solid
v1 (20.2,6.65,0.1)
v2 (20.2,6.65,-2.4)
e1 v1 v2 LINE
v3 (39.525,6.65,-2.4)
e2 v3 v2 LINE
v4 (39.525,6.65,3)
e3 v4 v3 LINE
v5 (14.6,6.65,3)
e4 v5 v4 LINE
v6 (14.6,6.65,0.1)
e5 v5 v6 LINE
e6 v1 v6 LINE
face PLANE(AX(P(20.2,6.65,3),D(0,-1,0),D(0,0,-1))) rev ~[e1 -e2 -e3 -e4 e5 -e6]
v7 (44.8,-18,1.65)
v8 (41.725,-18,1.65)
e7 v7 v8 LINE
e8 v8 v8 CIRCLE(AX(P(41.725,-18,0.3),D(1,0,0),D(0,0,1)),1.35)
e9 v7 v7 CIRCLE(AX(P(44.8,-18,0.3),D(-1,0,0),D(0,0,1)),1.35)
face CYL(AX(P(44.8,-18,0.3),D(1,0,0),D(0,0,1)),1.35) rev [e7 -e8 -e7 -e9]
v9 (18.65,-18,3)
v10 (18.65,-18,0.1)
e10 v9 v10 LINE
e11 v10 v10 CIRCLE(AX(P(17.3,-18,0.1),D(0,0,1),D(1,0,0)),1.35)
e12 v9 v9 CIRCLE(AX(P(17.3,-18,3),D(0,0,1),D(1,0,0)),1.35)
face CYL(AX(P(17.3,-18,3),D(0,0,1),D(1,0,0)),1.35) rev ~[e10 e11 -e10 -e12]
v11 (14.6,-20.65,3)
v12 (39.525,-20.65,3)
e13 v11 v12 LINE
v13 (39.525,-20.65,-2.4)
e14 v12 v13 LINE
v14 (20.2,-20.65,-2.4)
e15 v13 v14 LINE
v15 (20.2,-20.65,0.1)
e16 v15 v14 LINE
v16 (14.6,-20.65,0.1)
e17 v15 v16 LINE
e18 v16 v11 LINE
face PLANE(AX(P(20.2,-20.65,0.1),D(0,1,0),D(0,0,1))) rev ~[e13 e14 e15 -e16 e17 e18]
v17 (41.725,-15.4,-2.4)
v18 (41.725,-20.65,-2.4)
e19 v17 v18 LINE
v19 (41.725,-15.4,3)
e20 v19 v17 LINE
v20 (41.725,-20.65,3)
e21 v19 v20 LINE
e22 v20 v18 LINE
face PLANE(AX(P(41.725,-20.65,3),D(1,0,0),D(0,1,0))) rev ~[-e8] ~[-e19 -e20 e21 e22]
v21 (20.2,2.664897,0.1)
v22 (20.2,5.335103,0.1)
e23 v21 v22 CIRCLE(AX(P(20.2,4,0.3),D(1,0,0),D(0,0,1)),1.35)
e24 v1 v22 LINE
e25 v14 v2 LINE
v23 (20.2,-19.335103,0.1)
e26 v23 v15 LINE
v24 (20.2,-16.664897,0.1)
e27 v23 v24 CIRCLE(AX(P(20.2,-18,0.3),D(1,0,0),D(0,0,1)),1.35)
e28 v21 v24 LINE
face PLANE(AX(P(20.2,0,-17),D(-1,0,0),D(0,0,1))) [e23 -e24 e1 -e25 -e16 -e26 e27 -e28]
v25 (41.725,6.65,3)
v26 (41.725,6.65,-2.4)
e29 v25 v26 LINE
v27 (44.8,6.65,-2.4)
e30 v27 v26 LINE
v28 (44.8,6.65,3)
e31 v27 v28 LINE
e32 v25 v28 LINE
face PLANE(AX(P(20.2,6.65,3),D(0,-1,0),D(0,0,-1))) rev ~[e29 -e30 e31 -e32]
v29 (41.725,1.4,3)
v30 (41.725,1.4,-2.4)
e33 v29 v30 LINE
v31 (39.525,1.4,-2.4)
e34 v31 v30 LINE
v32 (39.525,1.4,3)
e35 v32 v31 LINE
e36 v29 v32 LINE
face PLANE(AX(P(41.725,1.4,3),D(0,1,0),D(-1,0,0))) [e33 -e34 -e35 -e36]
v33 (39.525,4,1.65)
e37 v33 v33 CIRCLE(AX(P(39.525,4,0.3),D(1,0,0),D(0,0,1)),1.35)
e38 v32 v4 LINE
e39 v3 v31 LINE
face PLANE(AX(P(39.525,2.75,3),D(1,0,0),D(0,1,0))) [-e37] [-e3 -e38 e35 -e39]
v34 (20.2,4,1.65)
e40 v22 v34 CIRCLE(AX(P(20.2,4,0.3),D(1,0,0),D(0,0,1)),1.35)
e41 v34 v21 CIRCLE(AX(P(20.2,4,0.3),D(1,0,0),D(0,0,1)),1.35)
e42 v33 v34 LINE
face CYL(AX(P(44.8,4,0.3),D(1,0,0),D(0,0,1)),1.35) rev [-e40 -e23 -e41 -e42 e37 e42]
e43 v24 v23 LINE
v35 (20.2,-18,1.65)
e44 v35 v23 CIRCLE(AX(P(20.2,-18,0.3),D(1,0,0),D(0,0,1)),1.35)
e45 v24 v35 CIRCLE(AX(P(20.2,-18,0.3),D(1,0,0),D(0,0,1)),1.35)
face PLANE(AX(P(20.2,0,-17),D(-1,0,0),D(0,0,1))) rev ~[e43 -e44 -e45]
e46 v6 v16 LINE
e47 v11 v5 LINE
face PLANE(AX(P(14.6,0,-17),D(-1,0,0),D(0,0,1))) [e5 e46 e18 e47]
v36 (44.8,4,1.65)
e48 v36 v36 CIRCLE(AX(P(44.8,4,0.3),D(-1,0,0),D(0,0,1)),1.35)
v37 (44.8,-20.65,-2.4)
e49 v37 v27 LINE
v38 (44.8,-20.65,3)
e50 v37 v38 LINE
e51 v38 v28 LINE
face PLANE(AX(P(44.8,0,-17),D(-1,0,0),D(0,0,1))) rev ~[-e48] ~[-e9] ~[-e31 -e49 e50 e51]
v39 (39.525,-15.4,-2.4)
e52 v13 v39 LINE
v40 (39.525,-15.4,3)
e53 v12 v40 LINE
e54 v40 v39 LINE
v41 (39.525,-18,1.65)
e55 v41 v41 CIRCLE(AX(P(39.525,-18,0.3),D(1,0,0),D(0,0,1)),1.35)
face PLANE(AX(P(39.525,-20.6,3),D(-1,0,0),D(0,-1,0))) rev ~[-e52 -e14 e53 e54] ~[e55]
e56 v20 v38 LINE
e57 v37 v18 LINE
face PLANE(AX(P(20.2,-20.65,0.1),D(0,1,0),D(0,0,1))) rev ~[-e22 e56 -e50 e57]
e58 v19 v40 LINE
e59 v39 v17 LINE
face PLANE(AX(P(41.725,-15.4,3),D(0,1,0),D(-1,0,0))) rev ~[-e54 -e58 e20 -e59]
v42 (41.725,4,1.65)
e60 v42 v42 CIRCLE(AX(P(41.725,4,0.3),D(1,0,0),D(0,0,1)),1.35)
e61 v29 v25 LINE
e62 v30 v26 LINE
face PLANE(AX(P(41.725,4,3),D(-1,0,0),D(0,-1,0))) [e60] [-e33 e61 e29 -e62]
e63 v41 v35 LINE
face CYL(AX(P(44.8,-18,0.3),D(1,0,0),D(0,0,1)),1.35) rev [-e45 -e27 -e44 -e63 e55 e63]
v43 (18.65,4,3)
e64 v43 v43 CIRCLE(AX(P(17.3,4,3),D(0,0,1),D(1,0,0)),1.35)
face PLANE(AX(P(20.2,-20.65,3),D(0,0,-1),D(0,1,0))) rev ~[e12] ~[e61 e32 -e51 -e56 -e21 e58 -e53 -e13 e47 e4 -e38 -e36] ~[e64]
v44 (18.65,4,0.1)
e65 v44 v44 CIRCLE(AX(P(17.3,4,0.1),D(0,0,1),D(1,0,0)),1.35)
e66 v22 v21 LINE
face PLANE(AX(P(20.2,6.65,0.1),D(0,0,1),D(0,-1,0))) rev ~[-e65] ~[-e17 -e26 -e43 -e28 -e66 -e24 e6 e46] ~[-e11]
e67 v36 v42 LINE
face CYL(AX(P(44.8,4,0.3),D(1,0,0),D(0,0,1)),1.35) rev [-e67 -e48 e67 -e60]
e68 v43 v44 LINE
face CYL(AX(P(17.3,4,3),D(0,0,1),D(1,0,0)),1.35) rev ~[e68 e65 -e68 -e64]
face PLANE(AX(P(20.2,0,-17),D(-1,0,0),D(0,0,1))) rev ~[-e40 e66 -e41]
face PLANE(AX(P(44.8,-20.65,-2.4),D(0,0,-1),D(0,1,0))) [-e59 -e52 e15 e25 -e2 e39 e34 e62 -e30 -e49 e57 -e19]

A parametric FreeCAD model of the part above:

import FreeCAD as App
import Part
import Sketcher

V = App.Vector

doc = App.newDocument("Part")
body = doc.addObject("PartDesign::Body", "Body")

sketch1 = body.newObject("Sketcher::SketchObject", "Sketch")
sketch1.AttachmentSupport = (doc.getObject("YZ_Plane"), [""])
sketch1.MapMode = "FlatFace"
sketch1.AttachmentOffset = App.Placement(V(0, 0, 44.8), App.Rotation())
sketch1.addGeometry(Part.LineSegment(V(-20.6, 3, 0), V(6.7, 3, 0)), False)
sketch1.addGeometry(Part.LineSegment(V(6.7, 3, 0), V(6.7, -2.4, 0)), False)
sketch1.addGeometry(Part.LineSegment(V(6.7, -2.4, 0), V(-20.6, -2.4, 0)), False)
sketch1.addGeometry(Part.LineSegment(V(-20.6, -2.4, 0), V(-20.6, 3, 0)), False)
sketch1.addGeometry(Part.Circle(V(-18, 0.3, 0), V(0, 0, 1), 1.4), False)
sketch1.addGeometry(Part.Circle(V(4, 0.3, 0), V(0, 0, 1), 1.4), False)
sketch1.addConstraint(Sketcher.Constraint("Coincident", 0, 2, 1, 1))
sketch1.addConstraint(Sketcher.Constraint("Coincident", 1, 2, 2, 1))
sketch1.addConstraint(Sketcher.Constraint("Coincident", 2, 2, 3, 1))
sketch1.addConstraint(Sketcher.Constraint("Coincident", 3, 2, 0, 1))
sketch1.addConstraint(Sketcher.Constraint("Horizontal", 0))
sketch1.addConstraint(Sketcher.Constraint("Vertical", 1))
sketch1.addConstraint(Sketcher.Constraint("Horizontal", 2))
sketch1.addConstraint(Sketcher.Constraint("Vertical", 3))
sketch1.addConstraint(Sketcher.Constraint("Equal", 4, 5))
sketch1.addConstraint(Sketcher.Constraint("Horizontal", 4, 3, 5, 3))
sketch1.addConstraint(Sketcher.Constraint("Diameter", 4, 2.7))
sketch1.addConstraint(Sketcher.Constraint("DistanceX", 0, 1, 0, 2, 27.3))
sketch1.addConstraint(Sketcher.Constraint("DistanceY", 1, 2, 1, 1, 5.4))
sketch1.addConstraint(Sketcher.Constraint("DistanceX", 4, 3, -1, 1, 18.0))
sketch1.addConstraint(Sketcher.Constraint("DistanceX", -1, 1, 5, 3, 4.0))
sketch1.addConstraint(Sketcher.Constraint("DistanceY", -1, 1, 0, 2, 3.0))
sketch1.addConstraint(Sketcher.Constraint("DistanceY", -1, 1, 4, 3, 0.3))
sketch1.addConstraint(Sketcher.Constraint("DistanceX", -1, 1, 0, 2, 6.65))
pad1 = body.newObject("PartDesign::Pad", "Pad")
pad1.Profile = sketch1
pad1.Length = 24.6
pad1.Reversed = True

sketch2 = body.newObject("Sketcher::SketchObject", "Sketch001")
sketch2.AttachmentSupport = (doc.getObject("YZ_Plane"), [""])
sketch2.MapMode = "FlatFace"
sketch2.AttachmentOffset = App.Placement(V(0, 0, 20.2), App.Rotation())
sketch2.addGeometry(Part.LineSegment(V(6.7, 3, 0), V(6.7, 0.1, 0)), False)
sketch2.addGeometry(Part.LineSegment(V(6.7, 0.1, 0), V(-20.6, 0.1, 0)), False)
sketch2.addGeometry(Part.LineSegment(V(-20.6, 0.1, 0), V(-20.6, 3, 0)), False)
sketch2.addGeometry(Part.LineSegment(V(-20.6, 3, 0), V(6.7, 3, 0)), False)
sketch2.addConstraint(Sketcher.Constraint("Coincident", 0, 2, 1, 1))
sketch2.addConstraint(Sketcher.Constraint("Coincident", 1, 2, 2, 1))
sketch2.addConstraint(Sketcher.Constraint("Coincident", 2, 2, 3, 1))
sketch2.addConstraint(Sketcher.Constraint("Coincident", 3, 2, 0, 1))
sketch2.addConstraint(Sketcher.Constraint("Vertical", 0))
sketch2.addConstraint(Sketcher.Constraint("Horizontal", 1))
sketch2.addConstraint(Sketcher.Constraint("Vertical", 2))
sketch2.addConstraint(Sketcher.Constraint("Horizontal", 3))
sketch2.addConstraint(Sketcher.Constraint("DistanceY", -1, 1, 0, 2, 0.1))
sketch2.addConstraint(Sketcher.Constraint("DistanceX", 1, 2, 1, 1, 27.3))
sketch2.addConstraint(Sketcher.Constraint("DistanceY", 0, 2, 0, 1, 2.9))
sketch2.addConstraint(Sketcher.Constraint("DistanceX", -1, 1, 0, 2, 6.65))
pad2 = body.newObject("PartDesign::Pad", "Pad001")
pad2.Profile = sketch2
pad2.Length = 5.6
pad2.Reversed = True

sketch3 = body.newObject("Sketcher::SketchObject", "Sketch002")
sketch3.AttachmentSupport = (doc.getObject("XY_Plane"), [""])
sketch3.MapMode = "FlatFace"
sketch3.AttachmentOffset = App.Placement(V(0, 0, 3), App.Rotation())
sketch3.addGeometry(Part.Circle(V(17.3, 4, 0), V(0, 0, 1), 1.4), False)
sketch3.addGeometry(Part.Circle(V(17.3, -18, 0), V(0, 0, 1), 1.4), False)
sketch3.addConstraint(Sketcher.Constraint("Equal", 0, 1))
sketch3.addConstraint(Sketcher.Constraint("Vertical", 0, 3, 1, 3))
sketch3.addConstraint(Sketcher.Constraint("Diameter", 0, 2.7))
sketch3.addConstraint(Sketcher.Constraint("DistanceY", -1, 1, 0, 3, 4.0))
sketch3.addConstraint(Sketcher.Constraint("DistanceY", 1, 3, -1, 1, 18.0))
sketch3.addConstraint(Sketcher.Constraint("DistanceX", -1, 1, 0, 3, 17.3))
pocket1 = body.newObject("PartDesign::Pocket", "Pocket")
pocket1.Profile = sketch3
pocket1.Type = "UpToFirst"

sketch4 = body.newObject("Sketcher::SketchObject", "Sketch003")
sketch4.AttachmentSupport = (doc.getObject("XY_Plane"), [""])
sketch4.MapMode = "FlatFace"
sketch4.AttachmentOffset = App.Placement(V(0, 0, 3), App.Rotation())
sketch4.addGeometry(Part.LineSegment(V(39.5, 1.4, 0), V(41.7, 1.4, 0)), False)
sketch4.addGeometry(Part.LineSegment(V(41.7, 1.4, 0), V(41.7, 6.7, 0)), False)
sketch4.addGeometry(Part.LineSegment(V(41.7, 6.7, 0), V(39.5, 6.7, 0)), False)
sketch4.addGeometry(Part.LineSegment(V(39.5, 6.7, 0), V(39.5, 1.4, 0)), False)
sketch4.addGeometry(Part.LineSegment(V(39.5, -20.6, 0), V(41.7, -20.6, 0)), False)
sketch4.addGeometry(Part.LineSegment(V(41.7, -20.6, 0), V(41.7, -15.4, 0)), False)
sketch4.addGeometry(Part.LineSegment(V(41.7, -15.4, 0), V(39.5, -15.4, 0)), False)
sketch4.addGeometry(Part.LineSegment(V(39.5, -15.4, 0), V(39.5, -20.6, 0)), False)
sketch4.addConstraint(Sketcher.Constraint("Coincident", 0, 2, 1, 1))
sketch4.addConstraint(Sketcher.Constraint("Coincident", 1, 2, 2, 1))
sketch4.addConstraint(Sketcher.Constraint("Coincident", 2, 2, 3, 1))
sketch4.addConstraint(Sketcher.Constraint("Coincident", 3, 2, 0, 1))
sketch4.addConstraint(Sketcher.Constraint("Coincident", 4, 2, 5, 1))
sketch4.addConstraint(Sketcher.Constraint("Coincident", 5, 2, 6, 1))
sketch4.addConstraint(Sketcher.Constraint("Coincident", 6, 2, 7, 1))
sketch4.addConstraint(Sketcher.Constraint("Coincident", 7, 2, 4, 1))
sketch4.addConstraint(Sketcher.Constraint("Horizontal", 0))
sketch4.addConstraint(Sketcher.Constraint("Vertical", 1))
sketch4.addConstraint(Sketcher.Constraint("Horizontal", 2))
sketch4.addConstraint(Sketcher.Constraint("Vertical", 3))
sketch4.addConstraint(Sketcher.Constraint("Horizontal", 4))
sketch4.addConstraint(Sketcher.Constraint("Vertical", 5))
sketch4.addConstraint(Sketcher.Constraint("Horizontal", 6))
sketch4.addConstraint(Sketcher.Constraint("Vertical", 7))
sketch4.addConstraint(Sketcher.Constraint("Vertical", 1, 2, 4, 2))
sketch4.addConstraint(Sketcher.Constraint("Vertical", 3, 2, 6, 2))
sketch4.addConstraint(Sketcher.Constraint("Equal", 3, 5))
sketch4.addConstraint(Sketcher.Constraint("DistanceX", 0, 1, 0, 2, 2.2))
sketch4.addConstraint(Sketcher.Constraint("DistanceY", 1, 1, 1, 2, 5.25))
sketch4.addConstraint(Sketcher.Constraint("DistanceY", -1, 1, 0, 2, 1.4))
sketch4.addConstraint(Sketcher.Constraint("DistanceY", 5, 2, -1, 1, 15.4))
sketch4.addConstraint(Sketcher.Constraint("DistanceX", -1, 1, 0, 2, 41.725))
pocket2 = body.newObject("PartDesign::Pocket", "Pocket001")
pocket2.Profile = sketch4
pocket2.Length = 10

doc.recompute()
